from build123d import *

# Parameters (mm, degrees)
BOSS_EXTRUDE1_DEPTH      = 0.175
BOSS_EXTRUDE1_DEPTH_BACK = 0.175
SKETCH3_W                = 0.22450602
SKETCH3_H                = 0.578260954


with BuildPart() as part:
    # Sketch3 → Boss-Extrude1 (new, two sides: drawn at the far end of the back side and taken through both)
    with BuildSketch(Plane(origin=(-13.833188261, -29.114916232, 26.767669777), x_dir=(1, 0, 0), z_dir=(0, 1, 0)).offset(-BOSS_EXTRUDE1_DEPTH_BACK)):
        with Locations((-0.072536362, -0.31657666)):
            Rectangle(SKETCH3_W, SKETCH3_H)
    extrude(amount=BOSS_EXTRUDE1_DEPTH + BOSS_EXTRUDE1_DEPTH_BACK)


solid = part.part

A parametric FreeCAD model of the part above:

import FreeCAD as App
import Part
import Sketcher
from FreeCAD import Vector
Q = App.Units.Quantity


def add_polygon(sketch, points):
    """Adds a closed chain of lines whose ends are joined by coincident constraints."""
    first, n = sketch.GeometryCount, len(points)
    for a, b in zip(points, points[1:] + points[:1]):
        sketch.addGeometry(Part.LineSegment(App.Vector(*a, 0), App.Vector(*b, 0)), False)
    for i in range(n):
        sketch.addConstraint(Sketcher.Constraint("Coincident", first + i, 2, first + (i + 1) % n, 1))

doc = App.newDocument("Part")
body = doc.addObject("PartDesign::Body", "Body")

# Sketch on XZ plane
sketch1 = body.newObject("Sketcher::SketchObject", "Sketch")
sketch1.AttachmentSupport = (doc.getObject("XZ_Plane"), [""])
sketch1.MapMode = "FlatFace"
sketch1.AttachmentOffset = App.Placement(Vector(0, 0, 29.114916), App.Rotation())
add_polygon(sketch1, [(-14.02, 26.8), (-14.02, 27.37), (-13.79, 27.37), (-13.79, 26.8)])  # lines 0-3
sketch1.addConstraint([
    Sketcher.Constraint("Vertical", 0),
    Sketcher.Constraint("Horizontal", 1),
    Sketcher.Constraint("Vertical", 2),
    Sketcher.Constraint("Horizontal", 3),
    Sketcher.Constraint("DistanceY", 0, 1, 0, 2, Q("0.578261 mm")),
    Sketcher.Constraint("DistanceX", 1, 1, 1, 2, Q("0.224506 mm")),
    Sketcher.Constraint("DistanceX", 1, 2, -1, 1, Q("13.793472 mm")),
    Sketcher.Constraint("DistanceY", -1, 1, 0, 2, Q("27.373377 mm")),
])
pad1 = body.newObject("PartDesign::Pad", "Pad")
pad1.Profile = sketch1
pad1.Type = "TwoLengths"
pad1.Length = 0.175
pad1.Length2 = 0.175
pad1.Reversed = True

doc.recompute()
